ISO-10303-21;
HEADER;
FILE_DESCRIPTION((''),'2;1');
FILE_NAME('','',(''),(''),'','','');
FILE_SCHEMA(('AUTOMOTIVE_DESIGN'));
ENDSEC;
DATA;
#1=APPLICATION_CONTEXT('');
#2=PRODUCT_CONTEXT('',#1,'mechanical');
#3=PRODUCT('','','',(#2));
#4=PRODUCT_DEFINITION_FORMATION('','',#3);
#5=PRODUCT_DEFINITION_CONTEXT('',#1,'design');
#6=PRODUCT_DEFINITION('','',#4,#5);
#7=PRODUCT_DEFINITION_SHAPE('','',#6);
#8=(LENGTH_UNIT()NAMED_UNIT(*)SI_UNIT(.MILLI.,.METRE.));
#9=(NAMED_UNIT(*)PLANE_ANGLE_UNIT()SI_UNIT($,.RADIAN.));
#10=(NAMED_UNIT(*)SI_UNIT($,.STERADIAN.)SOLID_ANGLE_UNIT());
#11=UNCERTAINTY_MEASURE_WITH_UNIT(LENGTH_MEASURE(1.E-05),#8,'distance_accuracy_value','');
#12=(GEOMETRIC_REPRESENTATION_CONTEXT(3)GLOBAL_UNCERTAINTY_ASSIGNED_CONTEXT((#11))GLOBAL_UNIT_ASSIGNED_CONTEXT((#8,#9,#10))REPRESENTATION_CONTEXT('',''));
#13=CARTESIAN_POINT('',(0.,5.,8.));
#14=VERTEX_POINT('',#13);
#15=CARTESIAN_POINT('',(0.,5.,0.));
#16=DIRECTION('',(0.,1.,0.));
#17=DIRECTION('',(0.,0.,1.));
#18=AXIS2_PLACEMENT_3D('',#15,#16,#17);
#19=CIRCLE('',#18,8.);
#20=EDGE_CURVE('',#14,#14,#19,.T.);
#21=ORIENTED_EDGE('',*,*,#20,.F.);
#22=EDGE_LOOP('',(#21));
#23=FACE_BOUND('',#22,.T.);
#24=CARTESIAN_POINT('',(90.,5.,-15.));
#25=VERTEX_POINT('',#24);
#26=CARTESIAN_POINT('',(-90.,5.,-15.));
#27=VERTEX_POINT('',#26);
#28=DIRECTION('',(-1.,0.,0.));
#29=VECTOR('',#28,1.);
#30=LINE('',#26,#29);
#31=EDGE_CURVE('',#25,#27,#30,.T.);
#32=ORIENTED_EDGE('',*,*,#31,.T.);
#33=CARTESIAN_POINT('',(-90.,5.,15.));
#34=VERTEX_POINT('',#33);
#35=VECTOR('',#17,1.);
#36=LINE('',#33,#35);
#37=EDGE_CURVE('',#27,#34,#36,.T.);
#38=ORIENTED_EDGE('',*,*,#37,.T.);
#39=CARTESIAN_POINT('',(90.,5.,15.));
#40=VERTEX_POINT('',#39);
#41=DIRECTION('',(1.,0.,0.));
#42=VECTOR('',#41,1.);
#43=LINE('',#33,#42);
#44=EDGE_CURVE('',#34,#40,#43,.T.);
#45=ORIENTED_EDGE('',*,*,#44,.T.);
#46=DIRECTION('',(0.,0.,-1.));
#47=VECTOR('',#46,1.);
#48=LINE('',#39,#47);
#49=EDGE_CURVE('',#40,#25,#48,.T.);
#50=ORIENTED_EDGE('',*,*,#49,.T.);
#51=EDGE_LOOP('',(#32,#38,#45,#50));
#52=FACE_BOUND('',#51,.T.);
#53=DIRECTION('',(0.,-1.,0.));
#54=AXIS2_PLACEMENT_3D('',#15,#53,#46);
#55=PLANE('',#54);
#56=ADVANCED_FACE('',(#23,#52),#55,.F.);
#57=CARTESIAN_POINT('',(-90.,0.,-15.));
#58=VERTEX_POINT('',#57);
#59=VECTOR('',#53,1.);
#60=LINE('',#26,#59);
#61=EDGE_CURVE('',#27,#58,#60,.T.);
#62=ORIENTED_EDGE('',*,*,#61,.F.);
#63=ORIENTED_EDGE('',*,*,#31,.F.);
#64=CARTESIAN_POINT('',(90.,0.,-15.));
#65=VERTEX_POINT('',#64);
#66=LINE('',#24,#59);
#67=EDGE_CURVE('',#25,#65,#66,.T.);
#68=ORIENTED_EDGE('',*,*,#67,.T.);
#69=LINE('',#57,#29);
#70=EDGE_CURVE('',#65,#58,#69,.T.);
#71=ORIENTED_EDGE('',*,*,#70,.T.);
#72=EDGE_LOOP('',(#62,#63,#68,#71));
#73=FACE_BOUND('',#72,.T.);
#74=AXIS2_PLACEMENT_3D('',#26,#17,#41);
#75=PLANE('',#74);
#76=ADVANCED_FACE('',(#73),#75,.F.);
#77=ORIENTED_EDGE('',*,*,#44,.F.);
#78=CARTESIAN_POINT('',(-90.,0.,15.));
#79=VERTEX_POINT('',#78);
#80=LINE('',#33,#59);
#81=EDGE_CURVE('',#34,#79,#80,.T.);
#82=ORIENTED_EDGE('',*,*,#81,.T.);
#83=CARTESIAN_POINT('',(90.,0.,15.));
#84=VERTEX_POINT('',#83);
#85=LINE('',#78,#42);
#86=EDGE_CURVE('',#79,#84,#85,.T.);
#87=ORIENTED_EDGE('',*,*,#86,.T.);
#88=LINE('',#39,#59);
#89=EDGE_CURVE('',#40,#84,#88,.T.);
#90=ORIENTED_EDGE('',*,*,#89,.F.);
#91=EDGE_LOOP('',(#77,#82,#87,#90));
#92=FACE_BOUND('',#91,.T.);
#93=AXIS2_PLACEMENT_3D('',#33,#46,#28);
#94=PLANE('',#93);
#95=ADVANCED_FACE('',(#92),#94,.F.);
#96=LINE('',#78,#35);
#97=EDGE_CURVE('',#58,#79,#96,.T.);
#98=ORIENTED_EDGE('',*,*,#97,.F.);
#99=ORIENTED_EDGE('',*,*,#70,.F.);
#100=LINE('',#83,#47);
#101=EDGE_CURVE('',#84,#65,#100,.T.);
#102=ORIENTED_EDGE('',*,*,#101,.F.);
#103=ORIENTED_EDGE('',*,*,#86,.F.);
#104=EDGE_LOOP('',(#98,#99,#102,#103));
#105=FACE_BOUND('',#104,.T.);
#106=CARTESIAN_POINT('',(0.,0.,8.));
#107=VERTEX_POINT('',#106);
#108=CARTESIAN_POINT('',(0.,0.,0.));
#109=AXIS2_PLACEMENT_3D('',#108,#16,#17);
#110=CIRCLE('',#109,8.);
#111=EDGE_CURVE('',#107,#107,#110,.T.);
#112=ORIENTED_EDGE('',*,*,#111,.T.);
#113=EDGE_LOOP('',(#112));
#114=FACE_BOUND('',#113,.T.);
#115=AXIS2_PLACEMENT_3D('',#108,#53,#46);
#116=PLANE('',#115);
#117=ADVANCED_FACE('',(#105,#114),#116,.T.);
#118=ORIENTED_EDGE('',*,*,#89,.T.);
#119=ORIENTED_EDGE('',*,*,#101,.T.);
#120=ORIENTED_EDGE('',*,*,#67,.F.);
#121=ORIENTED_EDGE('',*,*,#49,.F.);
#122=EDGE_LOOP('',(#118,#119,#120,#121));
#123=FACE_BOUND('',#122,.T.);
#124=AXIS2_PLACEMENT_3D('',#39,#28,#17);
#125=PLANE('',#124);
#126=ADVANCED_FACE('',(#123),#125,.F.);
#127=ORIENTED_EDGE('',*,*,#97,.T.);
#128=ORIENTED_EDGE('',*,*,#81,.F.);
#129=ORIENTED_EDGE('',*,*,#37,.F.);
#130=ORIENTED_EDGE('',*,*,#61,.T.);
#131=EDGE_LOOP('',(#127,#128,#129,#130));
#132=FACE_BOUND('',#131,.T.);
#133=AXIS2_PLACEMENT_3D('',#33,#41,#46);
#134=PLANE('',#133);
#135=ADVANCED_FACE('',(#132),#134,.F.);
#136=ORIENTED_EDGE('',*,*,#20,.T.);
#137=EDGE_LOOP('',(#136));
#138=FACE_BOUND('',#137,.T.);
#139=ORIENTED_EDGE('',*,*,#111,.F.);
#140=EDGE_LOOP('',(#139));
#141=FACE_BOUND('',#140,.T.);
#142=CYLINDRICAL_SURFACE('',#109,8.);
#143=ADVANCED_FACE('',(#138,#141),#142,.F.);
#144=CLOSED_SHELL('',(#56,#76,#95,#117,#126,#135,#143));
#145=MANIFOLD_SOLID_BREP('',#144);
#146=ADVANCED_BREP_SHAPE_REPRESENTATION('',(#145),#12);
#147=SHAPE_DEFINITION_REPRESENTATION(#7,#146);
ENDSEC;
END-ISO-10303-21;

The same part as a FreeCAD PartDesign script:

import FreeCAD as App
import Part
import Sketcher
from FreeCAD import Vector


def add_polygon(sketch, points):
    """Adds a closed chain of lines whose ends are joined by coincident constraints."""
    first, n = sketch.GeometryCount, len(points)
    for a, b in zip(points, points[1:] + points[:1]):
        sketch.addGeometry(Part.LineSegment(App.Vector(*a, 0), App.Vector(*b, 0)), False)
    for i in range(n):
        sketch.addConstraint(Sketcher.Constraint("Coincident", first + i, 2, first + (i + 1) % n, 1))

doc = App.newDocument("Part")
body = doc.addObject("PartDesign::Body", "Body")

# Sketch on XZ plane
sketch1 = body.newObject("Sketcher::SketchObject", "Sketch")
sketch1.AttachmentSupport = (doc.getObject("XZ_Plane"), [""])
sketch1.MapMode = "FlatFace"
add_polygon(sketch1, [(-90, -15), (-90, 15), (90, 15), (90, -15)])  # lines 0-3
sketch1.addConstraint([
    Sketcher.Constraint("Vertical", 0),
    Sketcher.Constraint("Horizontal", 1),
    Sketcher.Constraint("Vertical", 2),
    Sketcher.Constraint("Horizontal", 3),
    Sketcher.Constraint("Symmetric", 0, 2, 2, 2, -1, 1),
    Sketcher.Constraint("DistanceX", 1, 1, 1, 2, 180.0),
    Sketcher.Constraint("DistanceY", 0, 1, 0, 2, 30.0),
])
pad1 = body.newObject("PartDesign::Pad", "Pad")
pad1.Profile = sketch1
pad1.Length = 5
pad1.Reversed = True

# Sketch on XZ plane
sketch2 = body.newObject("Sketcher::SketchObject", "Sketch001")
sketch2.AttachmentSupport = (doc.getObject("XZ_Plane"), [""])
sketch2.MapMode = "FlatFace"
sketch2.AttachmentOffset = App.Placement(Vector(0, 0, -5), App.Rotation())
sketch2.addGeometry(Part.Circle(Vector(0, 0, 0), Vector(0, 0, 1), 8), False)
sketch2.addConstraint([
    Sketcher.Constraint("Coincident", 0, 3, -1, 1),
    Sketcher.Constraint("Diameter", 0, 16.0),
])
pocket1 = body.newObject("PartDesign::Pocket", "Pocket")
pocket1.Profile = sketch2
pocket1.Length = 5
pocket1.Reversed = True

doc.recompute()
